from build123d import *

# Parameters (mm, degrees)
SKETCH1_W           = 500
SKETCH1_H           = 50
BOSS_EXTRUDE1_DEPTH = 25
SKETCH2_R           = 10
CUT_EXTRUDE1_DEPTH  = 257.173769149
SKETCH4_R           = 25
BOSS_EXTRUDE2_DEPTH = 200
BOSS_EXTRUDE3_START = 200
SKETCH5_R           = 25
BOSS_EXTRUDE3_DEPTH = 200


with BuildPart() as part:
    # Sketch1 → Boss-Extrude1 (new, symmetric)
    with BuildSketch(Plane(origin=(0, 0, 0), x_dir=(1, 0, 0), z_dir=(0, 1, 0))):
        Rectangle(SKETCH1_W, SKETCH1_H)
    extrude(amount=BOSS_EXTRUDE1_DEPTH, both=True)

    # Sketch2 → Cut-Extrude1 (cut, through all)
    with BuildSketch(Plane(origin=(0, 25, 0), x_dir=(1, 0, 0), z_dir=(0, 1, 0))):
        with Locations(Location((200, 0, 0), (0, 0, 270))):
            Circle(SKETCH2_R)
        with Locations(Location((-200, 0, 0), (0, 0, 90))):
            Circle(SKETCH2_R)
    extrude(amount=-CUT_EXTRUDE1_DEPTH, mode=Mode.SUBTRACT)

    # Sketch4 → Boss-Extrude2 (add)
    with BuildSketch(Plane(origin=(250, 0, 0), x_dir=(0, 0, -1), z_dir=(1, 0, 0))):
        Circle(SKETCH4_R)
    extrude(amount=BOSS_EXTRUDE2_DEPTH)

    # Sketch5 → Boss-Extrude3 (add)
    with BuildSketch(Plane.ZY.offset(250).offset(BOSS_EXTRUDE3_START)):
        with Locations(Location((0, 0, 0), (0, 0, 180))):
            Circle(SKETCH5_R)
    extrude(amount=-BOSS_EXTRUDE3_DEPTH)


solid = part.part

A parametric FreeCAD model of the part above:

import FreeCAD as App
import Part
import Sketcher

V = App.Vector
Q = App.Units.Quantity

doc = App.newDocument("Part")
body = doc.addObject("PartDesign::Body", "Body")

sketch1 = body.newObject("Sketcher::SketchObject", "Sketch")
sketch1.AttachmentSupport = (doc.getObject("XZ_Plane"), [""])
sketch1.MapMode = "FlatFace"
sketch1.addGeometry([
    Part.LineSegment(V(-250, -25, 0), V(-250, 25, 0)),
    Part.LineSegment(V(-250, 25, 0), V(250, 25, 0)),
    Part.LineSegment(V(250, 25, 0), V(250, -25, 0)),
    Part.LineSegment(V(250, -25, 0), V(-250, -25, 0)),
], False)
sketch1.addConstraint([
    Sketcher.Constraint("Coincident", 0, 2, 1, 1),
    Sketcher.Constraint("Coincident", 1, 2, 2, 1),
    Sketcher.Constraint("Coincident", 2, 2, 3, 1),
    Sketcher.Constraint("Coincident", 3, 2, 0, 1),
    Sketcher.Constraint("Vertical", 0),
    Sketcher.Constraint("Horizontal", 1),
    Sketcher.Constraint("Vertical", 2),
    Sketcher.Constraint("Horizontal", 3),
    Sketcher.Constraint("Symmetric", 0, 2, 2, 2, -1, 1),
    Sketcher.Constraint("DistanceX", 1, 1, 1, 2, Q("500 mm")),
    Sketcher.Constraint("DistanceY", 0, 1, 0, 2, Q("50 mm")),
])
pad1 = body.newObject("PartDesign::Pad", "Pad")
pad1.Profile = sketch1
pad1.Length = 50
pad1.Midplane = True

sketch2 = body.newObject("Sketcher::SketchObject", "Sketch001")
sketch2.AttachmentSupport = (doc.getObject("XZ_Plane"), [""])
sketch2.MapMode = "FlatFace"
sketch2.AttachmentOffset = App.Placement(V(0, 0, -25), App.Rotation())
sketch2.addGeometry([
    Part.Circle(V(200, 0, 0), V(0, 0, 1), 10),
    Part.Circle(V(-200, 0, 0), V(0, 0, 1), 10),
], False)
sketch2.addConstraint([
    Sketcher.Constraint("Equal", 0, 1),
    Sketcher.Constraint("Symmetric", 0, 3, 1, 3, -1, 1),
    Sketcher.Constraint("PointOnObject", 0, 3, -1),
    Sketcher.Constraint("Diameter", 0, Q("20 mm")),
    Sketcher.Constraint("DistanceX", -1, 1, 0, 3, Q("200 mm")),
])
pocket1 = body.newObject("PartDesign::Pocket", "Pocket")
pocket1.Profile = sketch2
pocket1.Type = "ThroughAll"
pocket1.Reversed = True

sketch3 = body.newObject("Sketcher::SketchObject", "Sketch002")
sketch3.AttachmentSupport = (doc.getObject("YZ_Plane"), [""])
sketch3.MapMode = "FlatFace"
sketch3.AttachmentOffset = App.Placement(V(0, 0, 250), App.Rotation())
sketch3.addGeometry(Part.Circle(V(0, 0, 0), V(0, 0, 1), 25), False)
sketch3.addConstraint([
    Sketcher.Constraint("Coincident", 0, 3, -1, 1),
    Sketcher.Constraint("Diameter", 0, Q("50 mm")),
])
pad2 = body.newObject("PartDesign::Pad", "Pad001")
pad2.Profile = sketch3
pad2.Length = 200

sketch4 = body.newObject("Sketcher::SketchObject", "Sketch003")
sketch4.AttachmentSupport = (doc.getObject("YZ_Plane"), [""])
sketch4.MapMode = "FlatFace"
sketch4.AttachmentOffset = App.Placement(V(0, 0, -450), App.Rotation())
sketch4.addGeometry(Part.Circle(V(0, 0, 0), V(0, 0, 1), 25), False)
sketch4.addConstraint([
    Sketcher.Constraint("Coincident", 0, 3, -1, 1),
    Sketcher.Constraint("Diameter", 0, Q("50 mm")),
])
pad3 = body.newObject("PartDesign::Pad", "Pad002")
pad3.Profile = sketch4
pad3.Length = 200

doc.recompute()
